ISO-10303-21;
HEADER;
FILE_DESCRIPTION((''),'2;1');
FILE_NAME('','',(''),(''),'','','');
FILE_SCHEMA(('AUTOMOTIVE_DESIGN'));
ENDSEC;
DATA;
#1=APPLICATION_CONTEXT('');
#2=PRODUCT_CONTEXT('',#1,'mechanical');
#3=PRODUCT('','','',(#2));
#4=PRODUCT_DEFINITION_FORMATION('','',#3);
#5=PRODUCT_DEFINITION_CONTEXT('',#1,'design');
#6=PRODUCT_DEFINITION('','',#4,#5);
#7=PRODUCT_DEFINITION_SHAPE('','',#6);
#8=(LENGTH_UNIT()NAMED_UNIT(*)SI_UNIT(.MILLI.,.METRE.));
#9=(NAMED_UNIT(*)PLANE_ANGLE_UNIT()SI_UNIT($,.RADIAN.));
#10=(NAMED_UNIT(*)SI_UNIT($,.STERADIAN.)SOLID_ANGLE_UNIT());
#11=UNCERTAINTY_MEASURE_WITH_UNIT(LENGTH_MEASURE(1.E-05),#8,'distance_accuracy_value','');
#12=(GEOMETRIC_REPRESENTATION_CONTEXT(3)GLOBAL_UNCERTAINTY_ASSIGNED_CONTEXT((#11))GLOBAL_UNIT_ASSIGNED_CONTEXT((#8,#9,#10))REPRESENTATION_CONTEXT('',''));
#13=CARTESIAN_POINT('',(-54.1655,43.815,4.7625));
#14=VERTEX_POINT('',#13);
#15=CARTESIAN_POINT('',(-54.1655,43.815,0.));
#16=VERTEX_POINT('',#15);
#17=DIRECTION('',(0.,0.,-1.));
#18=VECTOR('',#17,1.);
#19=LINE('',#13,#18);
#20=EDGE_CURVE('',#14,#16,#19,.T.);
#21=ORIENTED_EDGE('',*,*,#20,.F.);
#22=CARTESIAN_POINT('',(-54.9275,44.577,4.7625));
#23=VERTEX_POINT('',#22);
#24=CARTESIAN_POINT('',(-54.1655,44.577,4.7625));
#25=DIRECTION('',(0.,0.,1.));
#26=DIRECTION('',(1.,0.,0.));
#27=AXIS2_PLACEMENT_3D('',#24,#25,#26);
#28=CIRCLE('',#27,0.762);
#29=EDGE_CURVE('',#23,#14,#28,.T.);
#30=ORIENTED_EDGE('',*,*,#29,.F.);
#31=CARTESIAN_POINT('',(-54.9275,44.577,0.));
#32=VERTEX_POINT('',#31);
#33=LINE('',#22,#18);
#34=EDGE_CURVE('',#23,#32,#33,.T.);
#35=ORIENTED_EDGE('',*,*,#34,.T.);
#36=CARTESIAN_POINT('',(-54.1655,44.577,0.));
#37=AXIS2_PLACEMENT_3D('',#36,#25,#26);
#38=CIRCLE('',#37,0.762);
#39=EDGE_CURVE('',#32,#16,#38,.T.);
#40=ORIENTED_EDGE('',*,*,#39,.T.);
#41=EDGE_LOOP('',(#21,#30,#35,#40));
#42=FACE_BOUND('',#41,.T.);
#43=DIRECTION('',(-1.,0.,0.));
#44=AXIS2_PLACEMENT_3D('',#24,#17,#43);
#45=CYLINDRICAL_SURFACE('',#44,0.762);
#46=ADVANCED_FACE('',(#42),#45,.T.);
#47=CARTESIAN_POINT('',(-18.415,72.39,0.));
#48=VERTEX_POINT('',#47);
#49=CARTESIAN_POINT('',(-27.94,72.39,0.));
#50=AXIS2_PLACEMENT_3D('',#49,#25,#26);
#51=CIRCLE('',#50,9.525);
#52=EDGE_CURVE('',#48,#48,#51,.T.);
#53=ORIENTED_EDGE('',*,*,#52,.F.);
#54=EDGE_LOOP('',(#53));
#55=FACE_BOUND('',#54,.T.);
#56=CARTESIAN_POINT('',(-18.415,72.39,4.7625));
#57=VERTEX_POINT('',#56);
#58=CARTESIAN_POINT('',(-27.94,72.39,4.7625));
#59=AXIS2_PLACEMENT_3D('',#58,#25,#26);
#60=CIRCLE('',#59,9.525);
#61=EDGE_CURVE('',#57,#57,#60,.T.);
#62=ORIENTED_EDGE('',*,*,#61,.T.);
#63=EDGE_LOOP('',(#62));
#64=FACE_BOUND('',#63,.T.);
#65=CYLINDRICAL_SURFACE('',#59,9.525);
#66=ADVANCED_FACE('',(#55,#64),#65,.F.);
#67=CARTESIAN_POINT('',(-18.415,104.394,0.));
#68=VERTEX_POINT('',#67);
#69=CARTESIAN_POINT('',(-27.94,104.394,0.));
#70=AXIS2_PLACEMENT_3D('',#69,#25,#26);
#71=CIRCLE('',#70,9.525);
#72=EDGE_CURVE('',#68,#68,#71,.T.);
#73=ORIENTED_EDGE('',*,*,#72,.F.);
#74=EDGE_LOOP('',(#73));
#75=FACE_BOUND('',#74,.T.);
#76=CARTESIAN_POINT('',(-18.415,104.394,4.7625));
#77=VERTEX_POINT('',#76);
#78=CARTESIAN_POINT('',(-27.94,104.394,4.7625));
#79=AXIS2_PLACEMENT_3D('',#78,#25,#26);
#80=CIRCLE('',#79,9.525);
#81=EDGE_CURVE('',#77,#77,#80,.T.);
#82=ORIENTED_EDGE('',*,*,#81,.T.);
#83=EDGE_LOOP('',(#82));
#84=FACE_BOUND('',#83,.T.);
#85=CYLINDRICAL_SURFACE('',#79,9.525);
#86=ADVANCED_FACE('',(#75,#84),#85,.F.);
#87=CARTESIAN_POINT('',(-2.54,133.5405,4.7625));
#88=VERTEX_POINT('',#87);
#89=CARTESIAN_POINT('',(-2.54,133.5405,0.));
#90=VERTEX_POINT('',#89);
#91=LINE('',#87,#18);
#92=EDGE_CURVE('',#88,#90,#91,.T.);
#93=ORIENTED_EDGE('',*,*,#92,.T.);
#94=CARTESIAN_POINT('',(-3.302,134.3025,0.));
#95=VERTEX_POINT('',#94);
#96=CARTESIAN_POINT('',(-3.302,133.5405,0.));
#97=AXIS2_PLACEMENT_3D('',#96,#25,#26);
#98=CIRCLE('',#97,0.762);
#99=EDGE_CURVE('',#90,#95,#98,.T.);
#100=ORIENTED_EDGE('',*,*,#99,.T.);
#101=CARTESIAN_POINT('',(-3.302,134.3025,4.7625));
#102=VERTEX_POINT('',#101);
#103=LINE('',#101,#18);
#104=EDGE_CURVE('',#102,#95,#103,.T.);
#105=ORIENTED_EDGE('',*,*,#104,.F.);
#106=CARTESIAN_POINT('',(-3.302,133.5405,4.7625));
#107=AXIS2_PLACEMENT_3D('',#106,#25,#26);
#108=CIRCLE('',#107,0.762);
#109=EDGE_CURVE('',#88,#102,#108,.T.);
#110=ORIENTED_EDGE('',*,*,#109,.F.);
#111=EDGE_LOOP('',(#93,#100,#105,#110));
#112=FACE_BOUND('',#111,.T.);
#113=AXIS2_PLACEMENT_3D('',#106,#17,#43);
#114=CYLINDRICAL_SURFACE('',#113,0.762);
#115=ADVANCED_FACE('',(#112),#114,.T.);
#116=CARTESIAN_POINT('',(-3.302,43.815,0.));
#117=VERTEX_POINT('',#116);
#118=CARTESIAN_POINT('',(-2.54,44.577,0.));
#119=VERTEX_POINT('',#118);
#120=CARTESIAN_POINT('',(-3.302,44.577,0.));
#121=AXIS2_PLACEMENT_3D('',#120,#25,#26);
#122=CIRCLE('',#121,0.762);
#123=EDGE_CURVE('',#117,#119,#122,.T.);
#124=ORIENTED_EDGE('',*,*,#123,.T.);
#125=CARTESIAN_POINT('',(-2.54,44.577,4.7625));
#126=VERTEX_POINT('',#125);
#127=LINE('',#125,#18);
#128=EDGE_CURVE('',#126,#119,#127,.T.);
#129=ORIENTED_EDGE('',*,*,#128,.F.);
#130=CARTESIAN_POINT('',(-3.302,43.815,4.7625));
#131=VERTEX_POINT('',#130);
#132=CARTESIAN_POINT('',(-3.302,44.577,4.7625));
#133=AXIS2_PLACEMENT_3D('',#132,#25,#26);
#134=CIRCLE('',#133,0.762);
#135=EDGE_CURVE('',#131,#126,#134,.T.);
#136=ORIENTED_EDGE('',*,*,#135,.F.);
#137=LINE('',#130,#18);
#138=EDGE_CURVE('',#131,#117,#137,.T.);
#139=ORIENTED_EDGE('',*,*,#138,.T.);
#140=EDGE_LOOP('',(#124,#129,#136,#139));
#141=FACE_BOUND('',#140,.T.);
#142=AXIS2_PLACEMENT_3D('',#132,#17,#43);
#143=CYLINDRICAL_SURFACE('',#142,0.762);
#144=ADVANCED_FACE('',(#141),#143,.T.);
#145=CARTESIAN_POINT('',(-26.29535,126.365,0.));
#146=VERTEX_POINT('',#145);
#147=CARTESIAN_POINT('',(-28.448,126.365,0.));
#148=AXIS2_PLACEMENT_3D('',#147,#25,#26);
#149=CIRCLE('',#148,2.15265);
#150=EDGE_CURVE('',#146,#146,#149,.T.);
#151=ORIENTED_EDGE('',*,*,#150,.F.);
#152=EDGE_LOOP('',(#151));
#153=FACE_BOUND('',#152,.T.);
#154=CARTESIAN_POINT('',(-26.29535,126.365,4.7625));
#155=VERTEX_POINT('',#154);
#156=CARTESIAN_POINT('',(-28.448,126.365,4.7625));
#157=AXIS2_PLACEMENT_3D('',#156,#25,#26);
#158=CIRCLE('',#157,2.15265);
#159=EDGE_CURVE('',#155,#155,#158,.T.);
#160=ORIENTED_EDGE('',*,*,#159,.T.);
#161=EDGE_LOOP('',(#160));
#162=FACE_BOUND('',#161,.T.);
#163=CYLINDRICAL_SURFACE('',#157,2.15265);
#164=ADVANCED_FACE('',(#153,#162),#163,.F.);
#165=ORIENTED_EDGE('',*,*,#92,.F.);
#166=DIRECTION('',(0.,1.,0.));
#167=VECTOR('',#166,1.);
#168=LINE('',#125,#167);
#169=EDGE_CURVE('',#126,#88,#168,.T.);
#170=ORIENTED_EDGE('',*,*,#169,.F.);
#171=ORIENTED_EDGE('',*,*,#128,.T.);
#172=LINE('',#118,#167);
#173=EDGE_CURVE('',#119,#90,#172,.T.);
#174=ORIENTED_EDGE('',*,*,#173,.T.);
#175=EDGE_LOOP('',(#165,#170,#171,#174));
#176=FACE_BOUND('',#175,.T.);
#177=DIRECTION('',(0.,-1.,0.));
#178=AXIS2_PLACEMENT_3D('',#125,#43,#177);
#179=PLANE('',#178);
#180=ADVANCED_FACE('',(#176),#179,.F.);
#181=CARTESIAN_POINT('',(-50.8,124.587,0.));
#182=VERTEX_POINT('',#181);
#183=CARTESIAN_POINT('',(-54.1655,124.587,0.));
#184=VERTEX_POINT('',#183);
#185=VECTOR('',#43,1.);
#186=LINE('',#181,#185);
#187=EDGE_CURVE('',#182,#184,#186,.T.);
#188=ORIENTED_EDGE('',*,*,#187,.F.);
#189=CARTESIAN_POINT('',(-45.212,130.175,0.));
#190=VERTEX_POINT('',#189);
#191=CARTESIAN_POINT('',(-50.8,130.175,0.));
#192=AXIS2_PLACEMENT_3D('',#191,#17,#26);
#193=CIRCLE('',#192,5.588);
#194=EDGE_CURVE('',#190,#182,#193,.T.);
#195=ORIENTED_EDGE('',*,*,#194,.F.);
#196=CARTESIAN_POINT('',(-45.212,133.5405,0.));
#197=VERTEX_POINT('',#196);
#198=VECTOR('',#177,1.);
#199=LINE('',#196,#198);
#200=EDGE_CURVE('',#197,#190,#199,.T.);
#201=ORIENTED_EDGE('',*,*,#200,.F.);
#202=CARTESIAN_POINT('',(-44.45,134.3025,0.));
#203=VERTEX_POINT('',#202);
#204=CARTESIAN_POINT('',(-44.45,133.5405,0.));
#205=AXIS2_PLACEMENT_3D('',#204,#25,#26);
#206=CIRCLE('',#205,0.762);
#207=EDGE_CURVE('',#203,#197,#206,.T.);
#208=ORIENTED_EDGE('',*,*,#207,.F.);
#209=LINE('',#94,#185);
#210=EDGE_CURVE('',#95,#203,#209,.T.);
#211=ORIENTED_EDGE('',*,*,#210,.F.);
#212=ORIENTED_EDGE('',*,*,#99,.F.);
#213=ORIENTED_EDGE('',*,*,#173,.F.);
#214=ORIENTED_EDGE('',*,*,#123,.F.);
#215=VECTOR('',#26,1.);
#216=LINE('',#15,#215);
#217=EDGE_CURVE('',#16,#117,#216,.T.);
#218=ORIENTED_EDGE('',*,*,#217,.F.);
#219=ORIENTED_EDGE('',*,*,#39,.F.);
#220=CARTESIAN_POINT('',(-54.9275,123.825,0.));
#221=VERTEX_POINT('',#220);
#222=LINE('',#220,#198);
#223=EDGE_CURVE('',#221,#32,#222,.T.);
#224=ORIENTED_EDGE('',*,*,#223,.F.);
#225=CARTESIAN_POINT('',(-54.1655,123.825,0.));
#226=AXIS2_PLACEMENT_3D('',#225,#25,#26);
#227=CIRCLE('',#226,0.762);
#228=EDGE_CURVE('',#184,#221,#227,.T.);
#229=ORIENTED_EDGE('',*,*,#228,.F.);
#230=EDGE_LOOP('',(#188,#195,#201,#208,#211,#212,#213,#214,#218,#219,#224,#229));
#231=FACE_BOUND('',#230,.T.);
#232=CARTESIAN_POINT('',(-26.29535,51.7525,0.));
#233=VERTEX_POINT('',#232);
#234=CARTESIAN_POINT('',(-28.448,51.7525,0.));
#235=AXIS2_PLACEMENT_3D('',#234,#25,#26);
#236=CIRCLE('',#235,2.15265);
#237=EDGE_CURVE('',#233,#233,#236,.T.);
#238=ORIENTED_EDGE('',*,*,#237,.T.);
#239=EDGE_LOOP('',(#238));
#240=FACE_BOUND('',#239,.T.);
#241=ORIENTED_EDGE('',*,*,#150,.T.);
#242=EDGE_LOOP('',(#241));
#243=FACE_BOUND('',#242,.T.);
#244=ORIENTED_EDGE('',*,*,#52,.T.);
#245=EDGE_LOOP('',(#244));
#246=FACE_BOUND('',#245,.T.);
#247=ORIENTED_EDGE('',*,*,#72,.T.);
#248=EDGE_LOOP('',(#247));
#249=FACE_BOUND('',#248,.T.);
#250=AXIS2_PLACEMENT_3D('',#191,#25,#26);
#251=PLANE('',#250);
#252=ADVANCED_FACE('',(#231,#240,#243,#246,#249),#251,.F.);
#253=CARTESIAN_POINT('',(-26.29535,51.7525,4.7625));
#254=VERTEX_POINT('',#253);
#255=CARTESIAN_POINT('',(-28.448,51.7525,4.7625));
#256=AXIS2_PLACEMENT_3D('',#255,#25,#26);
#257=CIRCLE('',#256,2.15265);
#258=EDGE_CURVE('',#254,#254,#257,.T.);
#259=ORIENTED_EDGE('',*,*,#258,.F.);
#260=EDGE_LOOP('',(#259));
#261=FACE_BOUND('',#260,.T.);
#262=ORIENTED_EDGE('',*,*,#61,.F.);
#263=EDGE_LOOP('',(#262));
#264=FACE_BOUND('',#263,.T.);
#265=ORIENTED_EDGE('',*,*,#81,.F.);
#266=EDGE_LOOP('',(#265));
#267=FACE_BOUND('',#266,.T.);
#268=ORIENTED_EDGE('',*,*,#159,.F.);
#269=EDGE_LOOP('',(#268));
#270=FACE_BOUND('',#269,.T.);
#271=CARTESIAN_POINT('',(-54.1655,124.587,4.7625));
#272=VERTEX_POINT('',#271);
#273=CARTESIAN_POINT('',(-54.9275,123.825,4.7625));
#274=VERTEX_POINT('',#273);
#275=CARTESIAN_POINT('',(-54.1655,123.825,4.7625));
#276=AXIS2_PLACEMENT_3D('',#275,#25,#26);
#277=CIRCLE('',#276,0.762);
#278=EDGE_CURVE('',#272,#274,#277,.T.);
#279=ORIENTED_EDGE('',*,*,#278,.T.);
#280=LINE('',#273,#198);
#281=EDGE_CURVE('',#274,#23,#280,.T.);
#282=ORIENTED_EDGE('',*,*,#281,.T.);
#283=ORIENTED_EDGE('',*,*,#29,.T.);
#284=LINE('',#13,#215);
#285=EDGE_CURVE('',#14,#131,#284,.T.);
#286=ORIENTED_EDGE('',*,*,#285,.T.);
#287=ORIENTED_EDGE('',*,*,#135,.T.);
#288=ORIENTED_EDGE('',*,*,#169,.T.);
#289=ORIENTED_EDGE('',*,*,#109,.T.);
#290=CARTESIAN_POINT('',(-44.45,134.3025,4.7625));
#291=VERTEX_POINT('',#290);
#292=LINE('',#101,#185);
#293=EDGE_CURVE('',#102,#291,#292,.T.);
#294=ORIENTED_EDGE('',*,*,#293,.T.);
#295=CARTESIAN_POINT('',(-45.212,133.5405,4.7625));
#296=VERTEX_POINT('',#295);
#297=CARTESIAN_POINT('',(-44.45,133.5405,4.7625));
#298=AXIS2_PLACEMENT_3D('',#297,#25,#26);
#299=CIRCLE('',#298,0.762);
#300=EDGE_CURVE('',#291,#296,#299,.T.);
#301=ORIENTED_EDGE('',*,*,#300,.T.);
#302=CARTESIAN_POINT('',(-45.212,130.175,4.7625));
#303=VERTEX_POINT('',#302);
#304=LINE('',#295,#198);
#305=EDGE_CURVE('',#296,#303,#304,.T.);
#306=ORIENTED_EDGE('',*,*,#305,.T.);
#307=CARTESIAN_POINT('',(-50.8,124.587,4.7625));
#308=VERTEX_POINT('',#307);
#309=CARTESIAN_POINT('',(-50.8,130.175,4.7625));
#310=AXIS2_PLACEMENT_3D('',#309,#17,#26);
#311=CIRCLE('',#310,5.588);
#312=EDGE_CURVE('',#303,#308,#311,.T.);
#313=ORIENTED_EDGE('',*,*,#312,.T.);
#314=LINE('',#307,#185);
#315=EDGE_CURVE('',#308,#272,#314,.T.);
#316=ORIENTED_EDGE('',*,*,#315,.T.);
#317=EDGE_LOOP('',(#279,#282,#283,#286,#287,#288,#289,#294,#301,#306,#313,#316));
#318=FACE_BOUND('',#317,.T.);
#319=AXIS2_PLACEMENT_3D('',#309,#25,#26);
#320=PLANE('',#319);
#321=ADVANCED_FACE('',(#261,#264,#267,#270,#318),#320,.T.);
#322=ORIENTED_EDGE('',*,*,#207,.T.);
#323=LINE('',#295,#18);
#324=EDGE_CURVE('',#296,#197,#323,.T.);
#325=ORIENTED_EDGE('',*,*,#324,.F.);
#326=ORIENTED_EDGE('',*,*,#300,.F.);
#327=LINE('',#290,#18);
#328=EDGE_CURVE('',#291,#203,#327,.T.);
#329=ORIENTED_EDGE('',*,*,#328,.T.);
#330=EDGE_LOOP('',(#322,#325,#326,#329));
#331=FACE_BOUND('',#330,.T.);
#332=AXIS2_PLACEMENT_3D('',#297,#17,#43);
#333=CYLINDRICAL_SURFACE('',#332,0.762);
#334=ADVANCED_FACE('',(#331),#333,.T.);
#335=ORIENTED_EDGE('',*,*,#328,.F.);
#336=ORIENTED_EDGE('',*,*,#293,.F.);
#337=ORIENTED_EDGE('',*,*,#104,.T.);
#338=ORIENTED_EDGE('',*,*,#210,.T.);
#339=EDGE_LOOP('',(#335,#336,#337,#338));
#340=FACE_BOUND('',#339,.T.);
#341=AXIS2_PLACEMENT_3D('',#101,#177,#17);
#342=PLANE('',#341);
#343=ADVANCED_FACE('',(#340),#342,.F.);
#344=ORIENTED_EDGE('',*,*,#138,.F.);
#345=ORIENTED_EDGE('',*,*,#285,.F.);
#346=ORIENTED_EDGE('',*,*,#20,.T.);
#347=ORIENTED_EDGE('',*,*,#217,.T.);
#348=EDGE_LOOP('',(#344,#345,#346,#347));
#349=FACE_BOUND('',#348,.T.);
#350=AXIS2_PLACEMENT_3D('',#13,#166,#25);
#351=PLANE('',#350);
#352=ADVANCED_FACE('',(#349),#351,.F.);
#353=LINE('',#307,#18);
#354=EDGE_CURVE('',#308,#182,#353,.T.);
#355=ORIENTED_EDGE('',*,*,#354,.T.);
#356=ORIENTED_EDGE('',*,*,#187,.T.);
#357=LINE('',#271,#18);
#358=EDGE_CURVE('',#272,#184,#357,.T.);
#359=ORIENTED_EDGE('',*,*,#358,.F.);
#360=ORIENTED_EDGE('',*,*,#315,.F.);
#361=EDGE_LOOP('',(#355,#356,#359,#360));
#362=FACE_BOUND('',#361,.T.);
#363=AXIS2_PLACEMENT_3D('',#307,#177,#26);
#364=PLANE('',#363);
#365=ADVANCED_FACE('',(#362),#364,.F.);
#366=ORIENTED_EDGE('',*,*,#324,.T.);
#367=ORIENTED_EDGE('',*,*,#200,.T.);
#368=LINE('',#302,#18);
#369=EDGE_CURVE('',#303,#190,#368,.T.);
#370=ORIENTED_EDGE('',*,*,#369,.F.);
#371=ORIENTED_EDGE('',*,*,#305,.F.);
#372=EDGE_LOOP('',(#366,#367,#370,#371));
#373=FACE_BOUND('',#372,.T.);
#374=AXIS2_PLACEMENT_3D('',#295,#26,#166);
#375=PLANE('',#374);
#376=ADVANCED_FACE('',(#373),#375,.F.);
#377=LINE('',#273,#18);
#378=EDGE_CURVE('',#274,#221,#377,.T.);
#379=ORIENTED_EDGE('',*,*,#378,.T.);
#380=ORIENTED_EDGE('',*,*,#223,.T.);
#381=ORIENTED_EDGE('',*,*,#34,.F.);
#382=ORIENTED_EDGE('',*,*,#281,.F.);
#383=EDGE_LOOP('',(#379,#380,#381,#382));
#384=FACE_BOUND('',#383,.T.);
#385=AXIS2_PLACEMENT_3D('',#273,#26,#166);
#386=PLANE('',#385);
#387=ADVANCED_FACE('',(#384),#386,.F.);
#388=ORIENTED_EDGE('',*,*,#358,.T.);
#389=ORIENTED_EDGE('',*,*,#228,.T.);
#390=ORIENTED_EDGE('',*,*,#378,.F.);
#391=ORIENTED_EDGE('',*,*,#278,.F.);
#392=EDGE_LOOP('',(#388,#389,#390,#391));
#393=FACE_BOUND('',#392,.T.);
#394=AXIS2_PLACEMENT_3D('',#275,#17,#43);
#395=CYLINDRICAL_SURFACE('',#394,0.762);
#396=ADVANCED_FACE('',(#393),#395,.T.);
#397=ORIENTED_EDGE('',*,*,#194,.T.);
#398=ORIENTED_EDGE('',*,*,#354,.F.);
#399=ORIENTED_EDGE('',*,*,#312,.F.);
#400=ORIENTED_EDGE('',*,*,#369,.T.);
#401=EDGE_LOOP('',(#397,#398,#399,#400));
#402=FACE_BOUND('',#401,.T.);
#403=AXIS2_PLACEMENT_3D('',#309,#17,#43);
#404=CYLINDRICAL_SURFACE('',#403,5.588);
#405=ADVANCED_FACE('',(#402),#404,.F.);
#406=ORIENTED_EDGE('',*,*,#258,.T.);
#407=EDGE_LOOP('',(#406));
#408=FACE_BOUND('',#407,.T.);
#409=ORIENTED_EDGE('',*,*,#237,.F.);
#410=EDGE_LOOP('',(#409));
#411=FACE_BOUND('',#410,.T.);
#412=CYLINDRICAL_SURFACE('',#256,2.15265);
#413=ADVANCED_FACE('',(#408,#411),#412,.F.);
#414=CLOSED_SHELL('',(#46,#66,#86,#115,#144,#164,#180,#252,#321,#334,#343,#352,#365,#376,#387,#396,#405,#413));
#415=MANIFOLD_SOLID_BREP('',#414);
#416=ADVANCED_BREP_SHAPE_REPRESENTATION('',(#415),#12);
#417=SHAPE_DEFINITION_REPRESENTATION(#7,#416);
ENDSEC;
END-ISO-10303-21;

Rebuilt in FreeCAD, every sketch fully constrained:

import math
import FreeCAD as App
import Part
import Sketcher

V = App.Vector
Q = App.Units.Quantity

doc = App.newDocument("Part")
body = doc.addObject("PartDesign::Body", "Body")

sketch1 = body.newObject("Sketcher::SketchObject", "Sketch")
sketch1.AttachmentSupport = (doc.getObject("XY_Plane"), [""])
sketch1.MapMode = "FlatFace"
sketch1.addGeometry([
    Part.LineSegment(V(-50.8, 124.6, 0), V(-54.2, 124.6, 0)),
    Part.ArcOfCircle(Part.Circle(V(-54.2, 123.8, 0), V(0, 0, 1), 0.8), math.radians(90), math.radians(180)),
    Part.LineSegment(V(-54.9, 123.8, 0), V(-54.9, 44.6, 0)),
    Part.ArcOfCircle(Part.Circle(V(-54.2, 44.6, 0), V(0, 0, 1), 0.8), math.radians(-180), math.radians(-90)),
    Part.LineSegment(V(-54.2, 43.8, 0), V(-3.3, 43.8, 0)),
    Part.ArcOfCircle(Part.Circle(V(-3.3, 44.6, 0), V(0, 0, 1), 0.8), math.radians(-90), math.radians(0)),
    Part.LineSegment(V(-2.5, 44.6, 0), V(-2.5, 133.5, 0)),
    Part.ArcOfCircle(Part.Circle(V(-3.3, 133.5, 0), V(0, 0, 1), 0.8), math.radians(0), math.radians(90)),
    Part.LineSegment(V(-3.3, 134.3, 0), V(-44.5, 134.3, 0)),
    Part.ArcOfCircle(Part.Circle(V(-44.4, 133.5, 0), V(0, 0, 1), 0.8), math.radians(90), math.radians(180)),
    Part.LineSegment(V(-45.2, 133.5, 0), V(-45.2, 130.2, 0)),
    Part.ArcOfCircle(Part.Circle(V(-50.8, 130.2, 0), V(0, 0, 1), 5.6), math.radians(-90), math.radians(0)),
], False)
sketch1.addConstraint([
    Sketcher.Constraint("Tangent", 0, 2, 1, 1),
    Sketcher.Constraint("Tangent", 1, 2, 2, 1),
    Sketcher.Constraint("Tangent", 2, 2, 3, 1),
    Sketcher.Constraint("Tangent", 3, 2, 4, 1),
    Sketcher.Constraint("Tangent", 4, 2, 5, 1),
    Sketcher.Constraint("Tangent", 5, 2, 6, 1),
    Sketcher.Constraint("Tangent", 6, 2, 7, 1),
    Sketcher.Constraint("Tangent", 7, 2, 8, 1),
    Sketcher.Constraint("Tangent", 8, 2, 9, 1),
    Sketcher.Constraint("Tangent", 9, 2, 10, 1),
    Sketcher.Constraint("Tangent", 10, 2, 11, 2),
    Sketcher.Constraint("Tangent", 11, 1, 0, 1),
    Sketcher.Constraint("Horizontal", 0),
    Sketcher.Constraint("Vertical", 2),
    Sketcher.Constraint("Horizontal", 4),
    Sketcher.Constraint("Vertical", 6),
    Sketcher.Constraint("Horizontal", 8),
    Sketcher.Constraint("Vertical", 10),
    Sketcher.Constraint("Equal", 1, 3),
    Sketcher.Constraint("Equal", 3, 5),
    Sketcher.Constraint("Equal", 5, 7),
    Sketcher.Constraint("Equal", 7, 9),
    Sketcher.Constraint("Equal", 0, 10),
    Sketcher.Constraint("Radius", 1, Q("0.03 in")),
    Sketcher.Constraint("Radius", 11, Q("0.22 in")),
    Sketcher.Constraint("DistanceX", 11, 3, -1, 1, Q("2 in")),
    Sketcher.Constraint("DistanceX", 8, 2, 8, 1, Q("1.62 in")),
    Sketcher.Constraint("DistanceY", 2, 2, 2, 1, Q("3.12 in")),
    Sketcher.Constraint("DistanceX", 0, 2, 0, 1, Q("0.1325 in")),
    Sketcher.Constraint("DistanceY", -1, 1, 1, 3, Q("4.875 in")),
])
pad1 = body.newObject("PartDesign::Pad", "Pad")
pad1.Profile = sketch1
pad1.Length = Q("0.1875 in")

sketch2 = body.newObject("Sketcher::SketchObject", "Sketch001")
sketch2.AttachmentSupport = (doc.getObject("XY_Plane"), [""])
sketch2.MapMode = "FlatFace"
sketch2.AttachmentOffset = App.Placement(V(0, 0, 0.1875 * 25.4), App.Rotation())
sketch2.addGeometry([
    Part.Circle(V(-28.4, 126.4, 0), V(0, 0, 1), 2.2),
    Part.Circle(V(-28.4, 51.8, 0), V(0, 0, 1), 2.2),
], False)
sketch2.addConstraint([
    Sketcher.Constraint("Equal", 0, 1),
    Sketcher.Constraint("Vertical", 0, 3, 1, 3),
    Sketcher.Constraint("Diameter", 0, Q("0.1695 in")),
    Sketcher.Constraint("DistanceX", 0, 3, -1, 1, Q("1.12 in")),
    Sketcher.Constraint("DistanceY", -1, 1, 0, 3, Q("4.975 in")),
    Sketcher.Constraint("DistanceY", 1, 3, 0, 3, Q("2.9375 in")),
])
doc.recompute()
hole = body.newObject("PartDesign::Hole", "Hole")
hole.Profile = sketch2
hole.ThreadType = "None"
hole.Diameter = Q("0.1695 in")
hole.DepthType = "ThroughAll"

sketch3 = body.newObject("Sketcher::SketchObject", "Sketch002")
sketch3.AttachmentSupport = (doc.getObject("XY_Plane"), [""])
sketch3.MapMode = "FlatFace"
sketch3.AttachmentOffset = App.Placement(V(0, 0, 0.1875 * 25.4), App.Rotation())
sketch3.addGeometry([
    Part.Circle(V(-28, 72, 0), V(0, 0, 1), 10),
    Part.Circle(V(-28, 104, 0), V(0, 0, 1), 10),
], False)
sketch3.addConstraint([
    Sketcher.Constraint("Equal", 0, 1),
    Sketcher.Constraint("Vertical", 0, 3, 1, 3),
    Sketcher.Constraint("Diameter", 0, Q("0.75 in")),
    Sketcher.Constraint("DistanceX", 0, 3, -1, 1, Q("1.1 in")),
    Sketcher.Constraint("DistanceY", -1, 1, 0, 3, Q("2.85 in")),
    Sketcher.Constraint("DistanceY", -1, 1, 1, 3, Q("4.11 in")),
])
doc.recompute()
hole2 = body.newObject("PartDesign::Hole", "Hole001")
hole2.Profile = sketch3
hole2.ThreadType = "None"
hole2.Diameter = Q("0.75 in")
hole2.DepthType = "ThroughAll"

doc.recompute()
